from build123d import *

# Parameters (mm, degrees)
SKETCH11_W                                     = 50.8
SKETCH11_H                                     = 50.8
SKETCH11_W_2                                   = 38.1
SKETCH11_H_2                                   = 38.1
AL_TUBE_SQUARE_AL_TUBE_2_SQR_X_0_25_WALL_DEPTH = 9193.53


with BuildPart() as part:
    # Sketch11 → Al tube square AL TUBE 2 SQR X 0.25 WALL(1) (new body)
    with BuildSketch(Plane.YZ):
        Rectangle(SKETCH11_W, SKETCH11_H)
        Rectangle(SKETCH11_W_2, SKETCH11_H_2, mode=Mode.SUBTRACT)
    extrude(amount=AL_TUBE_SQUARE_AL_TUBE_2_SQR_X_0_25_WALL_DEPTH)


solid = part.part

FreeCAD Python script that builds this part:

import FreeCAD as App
import Part
import Sketcher
from FreeCAD import Vector
Q = App.Units.Quantity


def add_polygon(sketch, points):
    """Adds a closed chain of lines whose ends are joined by coincident constraints."""
    first, n = sketch.GeometryCount, len(points)
    for a, b in zip(points, points[1:] + points[:1]):
        sketch.addGeometry(Part.LineSegment(App.Vector(*a, 0), App.Vector(*b, 0)), False)
    for i in range(n):
        sketch.addConstraint(Sketcher.Constraint("Coincident", first + i, 2, first + (i + 1) % n, 1))

doc = App.newDocument("Part")
params = doc.addObject("Spreadsheet::Sheet", "Params")
for row, (alias, value) in enumerate([
    ("sketch1_width", "2 in"),
    ("sketch1_width2", "1.5 in"),
    ("pad1_length", "361.95 in"),
], start=1):
    params.set(f"A{row}", alias)
    params.set(f"B{row}", "=" + value)
    params.setAlias(f"B{row}", alias)

body = doc.addObject("PartDesign::Body", "Body")

sketch1 = body.newObject("Sketcher::SketchObject", "Sketch")
sketch1.AttachmentSupport = (doc.getObject("YZ_Plane"), [""])
sketch1.MapMode = "FlatFace"
add_polygon(sketch1, [(-25, 25), (-25, -25), (25, -25), (25, 25)])
add_polygon(sketch1, [(19, -19), (-19, -19), (-19, 19), (19, 19)])
sketch1.addConstraint([
    Sketcher.Constraint("Vertical", 0),
    Sketcher.Constraint("Horizontal", 1),
    Sketcher.Constraint("Vertical", 2),
    Sketcher.Constraint("Horizontal", 3),
    Sketcher.Constraint("Horizontal", 4),
    Sketcher.Constraint("Vertical", 5),
    Sketcher.Constraint("Horizontal", 6),
    Sketcher.Constraint("Vertical", 7),
    Sketcher.Constraint("Symmetric", 0, 2, 2, 2, -1, 1),
    Sketcher.Constraint("Symmetric", 4, 2, 6, 2, -1, 1),
    Sketcher.Constraint("Equal", 3, 0),
    Sketcher.Constraint("Equal", 6, 5),
    Sketcher.Constraint("DistanceX", 1, 1, 1, 2, Q("2 in")),
    Sketcher.Constraint("DistanceX", 4, 2, 4, 1, Q("1.5 in")),
])
sketch1.setExpression("Constraints[20]", "Params.sketch1_width")
sketch1.setExpression("Constraints[21]", "Params.sketch1_width2")
pad1 = body.newObject("PartDesign::Pad", "Pad")
pad1.Profile = sketch1
pad1.setExpression("Length", "Params.pad1_length")

doc.recompute()
